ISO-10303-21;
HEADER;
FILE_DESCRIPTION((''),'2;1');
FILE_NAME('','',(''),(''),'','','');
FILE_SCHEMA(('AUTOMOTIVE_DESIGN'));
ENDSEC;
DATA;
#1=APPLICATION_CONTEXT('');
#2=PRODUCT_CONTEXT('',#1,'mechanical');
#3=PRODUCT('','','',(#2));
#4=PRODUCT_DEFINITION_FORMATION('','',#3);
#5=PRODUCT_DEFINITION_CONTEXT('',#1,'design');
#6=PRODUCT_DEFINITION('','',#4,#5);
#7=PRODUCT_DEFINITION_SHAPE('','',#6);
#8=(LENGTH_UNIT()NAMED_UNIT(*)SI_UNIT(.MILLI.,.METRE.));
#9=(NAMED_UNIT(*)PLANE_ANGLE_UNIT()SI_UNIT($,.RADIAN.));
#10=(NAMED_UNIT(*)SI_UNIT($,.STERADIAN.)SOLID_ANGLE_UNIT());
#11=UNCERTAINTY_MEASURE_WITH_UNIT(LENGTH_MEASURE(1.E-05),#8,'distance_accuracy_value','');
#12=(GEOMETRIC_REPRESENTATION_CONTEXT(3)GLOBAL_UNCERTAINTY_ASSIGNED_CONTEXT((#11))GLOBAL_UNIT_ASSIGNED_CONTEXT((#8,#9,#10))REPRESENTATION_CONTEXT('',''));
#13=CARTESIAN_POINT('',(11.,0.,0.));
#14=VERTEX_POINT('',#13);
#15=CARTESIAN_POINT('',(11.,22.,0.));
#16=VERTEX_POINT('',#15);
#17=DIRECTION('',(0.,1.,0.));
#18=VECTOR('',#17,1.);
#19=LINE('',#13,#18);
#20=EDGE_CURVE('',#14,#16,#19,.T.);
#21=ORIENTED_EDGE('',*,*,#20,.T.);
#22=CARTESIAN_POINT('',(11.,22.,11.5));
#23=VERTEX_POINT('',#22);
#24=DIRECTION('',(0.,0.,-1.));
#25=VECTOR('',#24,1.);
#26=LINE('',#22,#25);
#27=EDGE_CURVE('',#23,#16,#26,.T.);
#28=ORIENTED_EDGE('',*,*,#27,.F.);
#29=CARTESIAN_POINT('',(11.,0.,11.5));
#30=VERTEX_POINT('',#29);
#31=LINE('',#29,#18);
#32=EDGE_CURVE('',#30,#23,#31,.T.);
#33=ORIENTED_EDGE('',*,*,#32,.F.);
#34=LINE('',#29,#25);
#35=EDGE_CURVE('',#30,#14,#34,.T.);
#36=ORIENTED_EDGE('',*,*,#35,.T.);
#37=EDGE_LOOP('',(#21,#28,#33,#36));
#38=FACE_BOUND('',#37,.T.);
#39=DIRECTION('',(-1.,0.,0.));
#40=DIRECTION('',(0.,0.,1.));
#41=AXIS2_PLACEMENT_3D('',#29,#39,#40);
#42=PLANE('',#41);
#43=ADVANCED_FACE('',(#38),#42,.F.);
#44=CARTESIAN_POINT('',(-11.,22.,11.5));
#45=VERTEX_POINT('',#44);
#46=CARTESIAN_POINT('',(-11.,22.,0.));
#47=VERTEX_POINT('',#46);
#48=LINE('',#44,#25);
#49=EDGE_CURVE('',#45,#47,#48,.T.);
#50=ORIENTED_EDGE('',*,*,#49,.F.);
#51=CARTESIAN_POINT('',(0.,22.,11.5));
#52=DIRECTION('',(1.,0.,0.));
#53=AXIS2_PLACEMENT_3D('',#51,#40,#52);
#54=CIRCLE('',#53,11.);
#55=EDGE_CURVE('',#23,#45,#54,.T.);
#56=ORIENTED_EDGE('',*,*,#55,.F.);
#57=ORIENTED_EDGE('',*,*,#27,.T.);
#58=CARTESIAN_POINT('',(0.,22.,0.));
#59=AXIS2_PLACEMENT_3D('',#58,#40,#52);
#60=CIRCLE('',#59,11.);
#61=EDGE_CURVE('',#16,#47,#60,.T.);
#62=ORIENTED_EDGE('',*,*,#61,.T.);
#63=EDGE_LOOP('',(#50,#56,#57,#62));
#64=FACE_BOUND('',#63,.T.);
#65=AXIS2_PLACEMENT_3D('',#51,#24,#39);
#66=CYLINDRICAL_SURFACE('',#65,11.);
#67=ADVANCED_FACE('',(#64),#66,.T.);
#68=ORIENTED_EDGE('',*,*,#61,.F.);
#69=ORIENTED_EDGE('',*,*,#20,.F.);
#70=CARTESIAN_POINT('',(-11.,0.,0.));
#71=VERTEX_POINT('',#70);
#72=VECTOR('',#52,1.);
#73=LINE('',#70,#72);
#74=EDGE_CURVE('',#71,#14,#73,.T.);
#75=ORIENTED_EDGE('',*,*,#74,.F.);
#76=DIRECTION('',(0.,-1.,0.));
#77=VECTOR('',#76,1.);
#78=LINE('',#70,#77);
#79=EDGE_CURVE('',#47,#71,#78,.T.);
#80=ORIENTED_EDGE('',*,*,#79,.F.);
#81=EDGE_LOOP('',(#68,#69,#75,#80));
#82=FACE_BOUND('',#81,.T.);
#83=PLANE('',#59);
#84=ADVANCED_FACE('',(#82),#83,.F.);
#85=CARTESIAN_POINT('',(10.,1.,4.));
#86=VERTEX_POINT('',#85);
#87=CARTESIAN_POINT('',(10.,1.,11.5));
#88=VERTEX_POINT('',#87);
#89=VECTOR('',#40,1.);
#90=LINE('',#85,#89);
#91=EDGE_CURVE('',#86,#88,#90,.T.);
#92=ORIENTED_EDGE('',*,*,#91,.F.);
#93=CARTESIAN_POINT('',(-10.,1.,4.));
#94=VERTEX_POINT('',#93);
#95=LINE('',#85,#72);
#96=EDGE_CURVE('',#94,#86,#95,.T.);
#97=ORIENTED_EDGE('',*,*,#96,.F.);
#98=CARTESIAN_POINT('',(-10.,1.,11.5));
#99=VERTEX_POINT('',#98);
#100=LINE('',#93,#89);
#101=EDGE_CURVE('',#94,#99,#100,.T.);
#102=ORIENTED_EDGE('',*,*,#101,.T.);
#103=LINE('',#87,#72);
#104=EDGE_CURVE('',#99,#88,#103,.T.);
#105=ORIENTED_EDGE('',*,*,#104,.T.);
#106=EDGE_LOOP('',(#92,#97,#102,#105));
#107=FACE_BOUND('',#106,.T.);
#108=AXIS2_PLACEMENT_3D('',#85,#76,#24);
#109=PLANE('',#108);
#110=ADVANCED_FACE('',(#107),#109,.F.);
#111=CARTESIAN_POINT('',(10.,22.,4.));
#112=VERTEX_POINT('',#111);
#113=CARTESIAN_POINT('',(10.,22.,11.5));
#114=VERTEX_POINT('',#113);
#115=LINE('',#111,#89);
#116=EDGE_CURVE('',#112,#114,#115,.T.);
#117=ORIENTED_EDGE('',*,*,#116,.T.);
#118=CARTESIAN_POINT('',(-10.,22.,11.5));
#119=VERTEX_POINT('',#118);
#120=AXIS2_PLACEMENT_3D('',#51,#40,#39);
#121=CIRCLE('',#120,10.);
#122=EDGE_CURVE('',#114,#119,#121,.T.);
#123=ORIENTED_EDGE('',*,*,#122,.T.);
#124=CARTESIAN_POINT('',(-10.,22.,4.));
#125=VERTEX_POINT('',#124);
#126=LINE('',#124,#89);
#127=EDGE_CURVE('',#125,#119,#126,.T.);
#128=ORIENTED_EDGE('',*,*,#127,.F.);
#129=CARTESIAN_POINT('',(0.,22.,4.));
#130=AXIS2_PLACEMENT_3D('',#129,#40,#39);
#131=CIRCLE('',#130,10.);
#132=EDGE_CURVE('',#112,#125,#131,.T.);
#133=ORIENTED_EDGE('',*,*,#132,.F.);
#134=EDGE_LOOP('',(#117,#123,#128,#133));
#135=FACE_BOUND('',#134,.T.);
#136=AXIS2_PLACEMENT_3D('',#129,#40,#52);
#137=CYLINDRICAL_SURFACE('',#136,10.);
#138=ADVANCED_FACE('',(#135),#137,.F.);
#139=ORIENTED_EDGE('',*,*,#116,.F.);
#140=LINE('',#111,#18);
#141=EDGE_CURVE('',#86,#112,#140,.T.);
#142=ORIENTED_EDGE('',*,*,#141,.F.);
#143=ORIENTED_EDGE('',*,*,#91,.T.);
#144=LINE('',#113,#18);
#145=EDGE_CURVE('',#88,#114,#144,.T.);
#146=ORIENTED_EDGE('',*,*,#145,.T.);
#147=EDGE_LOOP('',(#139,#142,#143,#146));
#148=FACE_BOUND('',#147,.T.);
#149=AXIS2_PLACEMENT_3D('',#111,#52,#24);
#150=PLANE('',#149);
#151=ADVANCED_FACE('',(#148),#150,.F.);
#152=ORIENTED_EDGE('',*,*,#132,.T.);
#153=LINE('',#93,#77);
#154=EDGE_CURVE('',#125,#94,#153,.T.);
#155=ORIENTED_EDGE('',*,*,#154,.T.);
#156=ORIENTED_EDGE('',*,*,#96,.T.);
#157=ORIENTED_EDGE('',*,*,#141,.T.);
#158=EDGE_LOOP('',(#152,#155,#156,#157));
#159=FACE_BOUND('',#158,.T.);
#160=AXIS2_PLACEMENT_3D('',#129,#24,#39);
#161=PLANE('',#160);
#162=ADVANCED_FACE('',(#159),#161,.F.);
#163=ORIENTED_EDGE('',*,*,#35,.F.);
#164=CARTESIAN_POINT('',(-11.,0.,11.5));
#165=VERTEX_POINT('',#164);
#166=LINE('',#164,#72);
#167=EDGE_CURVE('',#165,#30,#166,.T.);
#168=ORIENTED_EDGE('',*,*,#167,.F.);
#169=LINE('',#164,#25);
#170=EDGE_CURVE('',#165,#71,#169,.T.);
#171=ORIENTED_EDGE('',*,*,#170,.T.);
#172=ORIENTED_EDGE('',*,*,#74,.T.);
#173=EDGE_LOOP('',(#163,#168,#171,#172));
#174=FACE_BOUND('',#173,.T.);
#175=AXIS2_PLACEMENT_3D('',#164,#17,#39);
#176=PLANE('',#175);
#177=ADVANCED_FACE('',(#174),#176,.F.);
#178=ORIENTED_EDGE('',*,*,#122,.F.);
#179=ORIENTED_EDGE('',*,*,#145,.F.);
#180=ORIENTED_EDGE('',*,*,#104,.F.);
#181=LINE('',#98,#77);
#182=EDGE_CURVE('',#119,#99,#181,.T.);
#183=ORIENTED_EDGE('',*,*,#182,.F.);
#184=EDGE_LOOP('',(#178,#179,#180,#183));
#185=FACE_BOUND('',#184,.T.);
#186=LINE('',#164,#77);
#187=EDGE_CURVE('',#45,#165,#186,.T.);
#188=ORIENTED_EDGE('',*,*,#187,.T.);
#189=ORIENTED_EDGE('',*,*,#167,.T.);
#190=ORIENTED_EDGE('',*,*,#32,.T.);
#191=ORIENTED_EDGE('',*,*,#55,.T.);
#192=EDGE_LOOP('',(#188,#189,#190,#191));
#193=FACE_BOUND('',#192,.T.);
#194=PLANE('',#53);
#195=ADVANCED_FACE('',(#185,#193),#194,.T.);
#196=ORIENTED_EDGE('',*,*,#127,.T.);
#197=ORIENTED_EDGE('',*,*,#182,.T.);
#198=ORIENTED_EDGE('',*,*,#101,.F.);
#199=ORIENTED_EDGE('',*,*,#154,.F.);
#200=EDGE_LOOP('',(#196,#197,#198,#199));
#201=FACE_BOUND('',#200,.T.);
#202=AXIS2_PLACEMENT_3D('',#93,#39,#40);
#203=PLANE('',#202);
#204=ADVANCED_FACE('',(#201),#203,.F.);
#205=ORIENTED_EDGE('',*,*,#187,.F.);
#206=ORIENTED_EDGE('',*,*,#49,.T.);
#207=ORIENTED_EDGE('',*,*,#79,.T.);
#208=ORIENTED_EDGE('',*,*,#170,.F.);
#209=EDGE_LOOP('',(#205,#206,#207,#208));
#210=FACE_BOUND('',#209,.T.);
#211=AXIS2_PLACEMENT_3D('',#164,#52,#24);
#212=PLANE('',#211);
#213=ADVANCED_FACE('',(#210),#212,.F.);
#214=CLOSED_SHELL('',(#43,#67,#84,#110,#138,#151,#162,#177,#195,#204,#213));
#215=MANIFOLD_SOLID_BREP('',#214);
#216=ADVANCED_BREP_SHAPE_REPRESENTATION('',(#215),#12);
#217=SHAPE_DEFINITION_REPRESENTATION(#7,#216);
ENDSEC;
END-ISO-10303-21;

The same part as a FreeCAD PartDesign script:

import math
import FreeCAD as App
import Part
import Sketcher

V = App.Vector

doc = App.newDocument("Part")
body = doc.addObject("PartDesign::Body", "Body")

sketch1 = doc.addObject("Sketcher::SketchObject", "Sketch")
body.addObject(sketch1)
sketch1.AttachmentSupport = (doc.XY_Plane, [""])
sketch1.MapMode = "FlatFace"
sketch1.addGeometry([
    Part.LineSegment(V(-11, 0, 0), V(11, 0, 0)),
    Part.LineSegment(V(11, 0, 0), V(11, 22, 0)),
    Part.ArcOfCircle(Part.Circle(V(0, 22, 0), V(0, 0, 1), 11), math.radians(0), math.radians(180)),
    Part.LineSegment(V(-11, 22, 0), V(-11, 0, 0)),
], False)
sketch1.addConstraint([
    Sketcher.Constraint("Coincident", 0, 2, 1, 1),
    Sketcher.Constraint("Tangent", 1, 2, 2, 1),
    Sketcher.Constraint("Tangent", 2, 2, 3, 1),
    Sketcher.Constraint("Coincident", 3, 2, 0, 1),
    Sketcher.Constraint("Horizontal", 0),
    Sketcher.Constraint("Vertical", 1),
    Sketcher.Constraint("Vertical", 3),
    Sketcher.Constraint("Symmetric", 0, 2, 3, 2, -1, 1),
    Sketcher.Constraint("Equal", 0, 1),
    Sketcher.Constraint("Radius", 2, 11.0),
])
pad1 = doc.addObject("PartDesign::Pad", "Pad")
body.addObject(pad1)
pad1.Profile = sketch1
pad1.Length = 11.5

sketch2 = doc.addObject("Sketcher::SketchObject", "Sketch001")
body.addObject(sketch2)
sketch2.AttachmentSupport = (doc.XY_Plane, [""])
sketch2.MapMode = "FlatFace"
sketch2.AttachmentOffset = App.Placement(V(0, 0, 11.5), App.Rotation())
sketch2.addGeometry([
    Part.LineSegment(V(-10, 22, 0), V(-10, 1, 0)),
    Part.LineSegment(V(-10, 1, 0), V(10, 1, 0)),
    Part.LineSegment(V(10, 1, 0), V(10, 22, 0)),
    Part.ArcOfCircle(Part.Circle(V(0, 22, 0), V(0, 0, 1), 10), math.radians(0), math.radians(180)),
], False)
sketch2.addConstraint([
    Sketcher.Constraint("Coincident", 0, 2, 1, 1),
    Sketcher.Constraint("Coincident", 1, 2, 2, 1),
    Sketcher.Constraint("Tangent", 2, 2, 3, 1),
    Sketcher.Constraint("Tangent", 3, 2, 0, 1),
    Sketcher.Constraint("Vertical", 0),
    Sketcher.Constraint("Horizontal", 1),
    Sketcher.Constraint("Vertical", 2),
    Sketcher.Constraint("PointOnObject", 3, 3, -2),
    Sketcher.Constraint("Radius", 3, 10.0),
    Sketcher.Constraint("DistanceY", 0, 2, 0, 1, 21.0),
    Sketcher.Constraint("DistanceY", -1, 1, 3, 3, 22.0),
])
pocket1 = doc.addObject("PartDesign::Pocket", "Pocket")
body.addObject(pocket1)
pocket1.Profile = sketch2
pocket1.Length = 7.5

doc.recompute()
